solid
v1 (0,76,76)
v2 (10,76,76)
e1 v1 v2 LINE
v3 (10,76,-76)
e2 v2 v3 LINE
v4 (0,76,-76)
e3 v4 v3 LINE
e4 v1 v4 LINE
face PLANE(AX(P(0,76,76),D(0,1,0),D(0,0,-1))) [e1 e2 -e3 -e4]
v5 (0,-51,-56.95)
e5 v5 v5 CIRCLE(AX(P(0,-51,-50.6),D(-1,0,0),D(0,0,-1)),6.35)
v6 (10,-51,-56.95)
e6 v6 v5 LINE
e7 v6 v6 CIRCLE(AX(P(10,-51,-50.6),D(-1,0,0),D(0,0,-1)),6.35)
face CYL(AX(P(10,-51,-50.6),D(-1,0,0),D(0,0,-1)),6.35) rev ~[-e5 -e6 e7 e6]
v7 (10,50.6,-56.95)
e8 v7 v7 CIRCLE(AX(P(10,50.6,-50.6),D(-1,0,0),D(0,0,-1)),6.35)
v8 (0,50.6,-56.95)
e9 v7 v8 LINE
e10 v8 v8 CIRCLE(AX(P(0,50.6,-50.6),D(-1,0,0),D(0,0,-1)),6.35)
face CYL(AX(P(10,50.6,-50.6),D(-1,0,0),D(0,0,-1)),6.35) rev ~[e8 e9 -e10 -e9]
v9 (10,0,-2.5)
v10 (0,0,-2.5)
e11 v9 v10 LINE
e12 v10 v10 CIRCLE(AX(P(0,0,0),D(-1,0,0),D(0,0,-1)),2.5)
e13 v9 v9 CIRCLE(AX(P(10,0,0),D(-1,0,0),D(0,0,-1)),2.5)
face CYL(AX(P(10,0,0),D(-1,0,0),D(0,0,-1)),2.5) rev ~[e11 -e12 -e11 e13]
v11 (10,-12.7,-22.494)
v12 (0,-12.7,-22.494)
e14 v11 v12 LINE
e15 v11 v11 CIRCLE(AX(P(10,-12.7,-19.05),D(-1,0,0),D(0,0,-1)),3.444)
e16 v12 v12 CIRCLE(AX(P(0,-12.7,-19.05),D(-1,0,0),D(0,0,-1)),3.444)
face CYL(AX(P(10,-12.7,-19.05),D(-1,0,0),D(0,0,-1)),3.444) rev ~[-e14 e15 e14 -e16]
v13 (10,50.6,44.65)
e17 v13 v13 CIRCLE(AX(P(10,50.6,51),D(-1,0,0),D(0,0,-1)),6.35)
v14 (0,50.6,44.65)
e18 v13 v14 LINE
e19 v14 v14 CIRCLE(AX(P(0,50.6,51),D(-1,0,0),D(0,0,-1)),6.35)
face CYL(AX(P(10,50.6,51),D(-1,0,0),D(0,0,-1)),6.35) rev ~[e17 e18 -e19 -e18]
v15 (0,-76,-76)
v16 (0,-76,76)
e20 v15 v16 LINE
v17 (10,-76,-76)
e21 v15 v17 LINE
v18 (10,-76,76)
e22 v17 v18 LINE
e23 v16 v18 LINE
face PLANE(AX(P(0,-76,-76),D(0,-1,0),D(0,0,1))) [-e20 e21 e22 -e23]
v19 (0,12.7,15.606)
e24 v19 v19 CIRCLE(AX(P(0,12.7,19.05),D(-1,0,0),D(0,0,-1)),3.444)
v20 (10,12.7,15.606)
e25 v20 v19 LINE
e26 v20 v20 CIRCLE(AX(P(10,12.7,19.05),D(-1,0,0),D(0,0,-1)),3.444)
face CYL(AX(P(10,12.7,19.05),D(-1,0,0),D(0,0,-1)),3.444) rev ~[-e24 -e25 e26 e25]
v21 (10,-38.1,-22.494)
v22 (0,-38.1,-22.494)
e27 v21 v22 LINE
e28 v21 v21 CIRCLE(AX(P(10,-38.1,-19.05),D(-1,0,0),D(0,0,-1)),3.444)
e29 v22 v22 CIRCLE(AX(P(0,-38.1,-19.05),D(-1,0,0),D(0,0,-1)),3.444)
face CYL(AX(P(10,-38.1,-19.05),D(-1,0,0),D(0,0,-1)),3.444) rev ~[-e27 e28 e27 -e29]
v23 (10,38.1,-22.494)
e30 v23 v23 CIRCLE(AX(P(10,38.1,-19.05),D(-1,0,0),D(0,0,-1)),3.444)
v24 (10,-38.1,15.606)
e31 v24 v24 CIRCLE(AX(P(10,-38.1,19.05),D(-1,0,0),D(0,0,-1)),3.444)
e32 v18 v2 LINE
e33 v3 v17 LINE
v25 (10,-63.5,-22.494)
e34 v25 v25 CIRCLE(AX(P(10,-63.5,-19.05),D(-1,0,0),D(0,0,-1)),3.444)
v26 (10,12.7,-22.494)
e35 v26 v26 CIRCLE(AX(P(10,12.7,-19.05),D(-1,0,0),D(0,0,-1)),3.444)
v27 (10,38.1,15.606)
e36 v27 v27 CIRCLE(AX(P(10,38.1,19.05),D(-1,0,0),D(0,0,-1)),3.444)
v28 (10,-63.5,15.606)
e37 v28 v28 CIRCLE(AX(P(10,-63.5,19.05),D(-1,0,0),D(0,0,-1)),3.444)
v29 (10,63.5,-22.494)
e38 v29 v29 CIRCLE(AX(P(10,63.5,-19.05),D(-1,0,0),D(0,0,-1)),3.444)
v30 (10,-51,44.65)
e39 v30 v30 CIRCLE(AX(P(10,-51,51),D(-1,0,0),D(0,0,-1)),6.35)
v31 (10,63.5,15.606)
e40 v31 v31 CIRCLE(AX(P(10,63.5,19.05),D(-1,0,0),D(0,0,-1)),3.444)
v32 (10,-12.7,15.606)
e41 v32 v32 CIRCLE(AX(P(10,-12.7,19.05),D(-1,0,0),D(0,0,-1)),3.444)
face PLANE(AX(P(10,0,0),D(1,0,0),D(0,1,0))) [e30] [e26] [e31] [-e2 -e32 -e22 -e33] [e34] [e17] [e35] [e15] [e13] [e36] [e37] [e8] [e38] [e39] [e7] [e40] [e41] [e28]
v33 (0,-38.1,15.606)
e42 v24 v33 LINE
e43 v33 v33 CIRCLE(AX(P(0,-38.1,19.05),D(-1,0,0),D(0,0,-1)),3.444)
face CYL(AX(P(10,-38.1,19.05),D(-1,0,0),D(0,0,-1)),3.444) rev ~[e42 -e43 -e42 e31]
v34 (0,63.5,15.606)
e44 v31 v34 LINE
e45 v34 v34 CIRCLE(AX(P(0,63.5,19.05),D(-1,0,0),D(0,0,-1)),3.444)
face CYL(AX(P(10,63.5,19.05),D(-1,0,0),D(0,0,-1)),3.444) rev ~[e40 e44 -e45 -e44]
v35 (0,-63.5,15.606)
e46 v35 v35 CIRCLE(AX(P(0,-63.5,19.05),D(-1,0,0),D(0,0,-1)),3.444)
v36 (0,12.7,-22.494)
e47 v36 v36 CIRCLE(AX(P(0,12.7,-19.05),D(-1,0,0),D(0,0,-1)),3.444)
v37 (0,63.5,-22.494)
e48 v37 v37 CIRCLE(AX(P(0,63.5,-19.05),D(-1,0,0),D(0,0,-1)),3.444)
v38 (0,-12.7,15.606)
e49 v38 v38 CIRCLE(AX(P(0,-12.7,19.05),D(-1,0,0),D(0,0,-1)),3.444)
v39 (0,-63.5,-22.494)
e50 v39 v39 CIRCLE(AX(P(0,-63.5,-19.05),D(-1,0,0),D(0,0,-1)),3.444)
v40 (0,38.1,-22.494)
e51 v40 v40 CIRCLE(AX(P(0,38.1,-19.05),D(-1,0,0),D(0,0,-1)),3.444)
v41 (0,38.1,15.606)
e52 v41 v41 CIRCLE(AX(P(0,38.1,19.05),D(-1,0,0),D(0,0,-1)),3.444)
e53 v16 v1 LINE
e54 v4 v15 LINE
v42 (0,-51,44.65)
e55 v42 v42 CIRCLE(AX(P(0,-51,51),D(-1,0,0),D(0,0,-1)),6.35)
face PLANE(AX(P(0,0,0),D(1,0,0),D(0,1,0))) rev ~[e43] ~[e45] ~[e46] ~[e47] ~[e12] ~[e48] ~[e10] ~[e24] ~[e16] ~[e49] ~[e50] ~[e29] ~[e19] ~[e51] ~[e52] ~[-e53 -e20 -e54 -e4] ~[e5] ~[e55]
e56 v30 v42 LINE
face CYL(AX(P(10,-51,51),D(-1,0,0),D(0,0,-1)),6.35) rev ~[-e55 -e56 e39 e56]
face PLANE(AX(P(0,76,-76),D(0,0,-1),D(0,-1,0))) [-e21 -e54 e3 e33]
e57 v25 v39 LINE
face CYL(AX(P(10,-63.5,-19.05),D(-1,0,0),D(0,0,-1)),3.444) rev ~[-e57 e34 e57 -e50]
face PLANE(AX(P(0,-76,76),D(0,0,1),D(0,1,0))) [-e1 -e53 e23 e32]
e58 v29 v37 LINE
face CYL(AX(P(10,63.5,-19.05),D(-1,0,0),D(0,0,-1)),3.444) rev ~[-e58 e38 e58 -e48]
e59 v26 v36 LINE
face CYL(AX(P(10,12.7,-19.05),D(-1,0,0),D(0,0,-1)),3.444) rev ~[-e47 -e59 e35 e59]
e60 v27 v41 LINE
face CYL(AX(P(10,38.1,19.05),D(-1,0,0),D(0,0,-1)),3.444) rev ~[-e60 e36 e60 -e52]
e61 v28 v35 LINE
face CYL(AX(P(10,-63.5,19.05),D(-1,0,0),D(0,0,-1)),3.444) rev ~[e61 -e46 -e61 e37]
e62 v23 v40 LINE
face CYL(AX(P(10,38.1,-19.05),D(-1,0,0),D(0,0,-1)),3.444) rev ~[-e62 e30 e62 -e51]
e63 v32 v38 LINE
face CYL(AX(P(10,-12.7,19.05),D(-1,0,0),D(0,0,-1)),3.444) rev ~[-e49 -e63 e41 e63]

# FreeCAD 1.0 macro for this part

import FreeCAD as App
import Part
import Sketcher
from FreeCAD import Vector


def add_polygon(sketch, points):
    """Adds a closed chain of lines whose ends are joined by coincident constraints."""
    first, n = sketch.GeometryCount, len(points)
    for a, b in zip(points, points[1:] + points[:1]):
        sketch.addGeometry(Part.LineSegment(App.Vector(*a, 0), App.Vector(*b, 0)), False)
    for i in range(n):
        sketch.addConstraint(Sketcher.Constraint("Coincident", first + i, 2, first + (i + 1) % n, 1))

doc = App.newDocument("Part")
body = doc.addObject("PartDesign::Body", "Body")

# Sketch on YZ plane
sketch1 = body.newObject("Sketcher::SketchObject", "Sketch")
sketch1.AttachmentSupport = (doc.getObject("YZ_Plane"), [""])
sketch1.MapMode = "FlatFace"
add_polygon(sketch1, [(-76, -76), (76, -76), (76, 76), (-76, 76)])  # lines 0-3
sketch1.addConstraint([
    Sketcher.Constraint("Horizontal", 0),
    Sketcher.Constraint("Vertical", 1),
    Sketcher.Constraint("Horizontal", 2),
    Sketcher.Constraint("Vertical", 3),
    Sketcher.Constraint("Symmetric", 0, 2, 2, 2, -1, 1),
    Sketcher.Constraint("Equal", 2, 1),
    Sketcher.Constraint("DistanceX", 0, 1, 0, 2, 152.0),
])
pad1 = body.newObject("PartDesign::Pad", "Pad")
pad1.Profile = sketch1
pad1.Length = 10

# Sketch on YZ plane
sketch2 = body.newObject("Sketcher::SketchObject", "Sketch001")
sketch2.AttachmentSupport = (doc.getObject("YZ_Plane"), [""])
sketch2.MapMode = "FlatFace"
sketch2.AttachmentOffset = App.Placement(Vector(0, 0, 10), App.Rotation())
sketch2.addGeometry(Part.Circle(Vector(50.6, -50.6, 0), Vector(0, 0, 1), 6.35), False)
sketch2.addConstraint([
    Sketcher.Constraint("Diameter", 0, 12.7),
    Sketcher.Constraint("DistanceX", -1, 1, 0, 3, 50.6),
    Sketcher.Constraint("DistanceY", 0, 3, -1, 1, 50.6),
])
doc.recompute()
hole = body.newObject("PartDesign::Hole", "Hole")
hole.Profile = sketch2
hole.ThreadType = "None"
hole.Diameter = 12.7
hole.DepthType = "ThroughAll"

# Sketch on YZ plane
sketch3 = body.newObject("Sketcher::SketchObject", "Sketch002")
sketch3.AttachmentSupport = (doc.getObject("YZ_Plane"), [""])
sketch3.MapMode = "FlatFace"
sketch3.AttachmentOffset = App.Placement(Vector(0, 0, 10), App.Rotation())
sketch3.addGeometry(Part.Circle(Vector(50.6, 51, 0), Vector(0, 0, 1), 6.35), False)
sketch3.addConstraint([
    Sketcher.Constraint("Diameter", 0, 12.7),
    Sketcher.Constraint("DistanceY", -1, 1, 0, 3, 51.0),
    Sketcher.Constraint("DistanceX", -1, 1, 0, 3, 50.6),
])
doc.recompute()
hole2 = body.newObject("PartDesign::Hole", "Hole001")
hole2.Profile = sketch3
hole2.ThreadType = "None"
hole2.Diameter = 12.7
hole2.DepthType = "ThroughAll"

# Sketch on YZ plane
sketch4 = body.newObject("Sketcher::SketchObject", "Sketch003")
sketch4.AttachmentSupport = (doc.getObject("YZ_Plane"), [""])
sketch4.MapMode = "FlatFace"
sketch4.AttachmentOffset = App.Placement(Vector(0, 0, 10), App.Rotation())
sketch4.addGeometry(Part.Circle(Vector(-51, -50.6, 0), Vector(0, 0, 1), 6.35), False)
sketch4.addConstraint([
    Sketcher.Constraint("Diameter", 0, 12.7),
    Sketcher.Constraint("DistanceX", 0, 3, -1, 1, 51.0),
    Sketcher.Constraint("DistanceY", 0, 3, -1, 1, 50.6),
])
doc.recompute()
hole3 = body.newObject("PartDesign::Hole", "Hole002")
hole3.Profile = sketch4
hole3.ThreadType = "None"
hole3.Diameter = 12.7
hole3.DepthType = "ThroughAll"

# Sketch on YZ plane
sketch5 = body.newObject("Sketcher::SketchObject", "Sketch004")
sketch5.AttachmentSupport = (doc.getObject("YZ_Plane"), [""])
sketch5.MapMode = "FlatFace"
sketch5.AttachmentOffset = App.Placement(Vector(0, 0, 10), App.Rotation())
sketch5.addGeometry(Part.Circle(Vector(-51, 51, 0), Vector(0, 0, 1), 6.35), False)
sketch5.addConstraint([
    Sketcher.Constraint("Diameter", 0, 12.7),
    Sketcher.Constraint("DistanceX", 0, 3, -1, 1, 51.0),
    Sketcher.Constraint("DistanceY", -1, 1, 0, 3, 51.0),
])
doc.recompute()
hole4 = body.newObject("PartDesign::Hole", "Hole003")
hole4.Profile = sketch5
hole4.ThreadType = "None"
hole4.Diameter = 12.7
hole4.DepthType = "ThroughAll"

# Sketch on YZ plane
sketch6 = body.newObject("Sketcher::SketchObject", "Sketch005")
sketch6.AttachmentSupport = (doc.getObject("YZ_Plane"), [""])
sketch6.MapMode = "FlatFace"
sketch6.AttachmentOffset = App.Placement(Vector(0, 0, 10), App.Rotation())
sketch6.addGeometry(Part.Circle(Vector(63.5, -19.05, 0), Vector(0, 0, 1), 3.444), False)
sketch6.addConstraint([
    Sketcher.Constraint("Diameter", 0, 6.888),
    Sketcher.Constraint("DistanceX", -1, 1, 0, 3, 63.5),
    Sketcher.Constraint("DistanceY", 0, 3, -1, 1, 19.05),
])
doc.recompute()
hole5 = body.newObject("PartDesign::Hole", "Hole004")
hole5.Profile = sketch6
hole5.ThreadType = "None"
hole5.Diameter = 6.888
hole5.DepthType = "ThroughAll"

# Sketch on YZ plane
sketch7 = body.newObject("Sketcher::SketchObject", "Sketch006")
sketch7.AttachmentSupport = (doc.getObject("YZ_Plane"), [""])
sketch7.MapMode = "FlatFace"
sketch7.AttachmentOffset = App.Placement(Vector(0, 0, 10), App.Rotation())
sketch7.addGeometry(Part.Circle(Vector(63.5, 19.05, 0), Vector(0, 0, 1), 3.444), False)
sketch7.addConstraint([
    Sketcher.Constraint("Diameter", 0, 6.888),
    Sketcher.Constraint("DistanceX", -1, 1, 0, 3, 63.5),
    Sketcher.Constraint("DistanceY", -1, 1, 0, 3, 19.05),
])
doc.recompute()
hole6 = body.newObject("PartDesign::Hole", "Hole005")
hole6.Profile = sketch7
hole6.ThreadType = "None"
hole6.Diameter = 6.888
hole6.DepthType = "ThroughAll"
doc.recompute()

linearpattern = body.newObject("PartDesign::LinearPattern", "LinearPattern")
linearpattern.Originals = [hole5]
linearpattern.Direction = (doc.getObject("Y_Axis"), [""])
linearpattern.Mode = "offset"
linearpattern.Offset = 25.4
linearpattern.Occurrences = 6
linearpattern.Reversed = True
body.Tip = linearpattern
doc.recompute()

linearpattern2 = body.newObject("PartDesign::LinearPattern", "LinearPattern001")
linearpattern2.Originals = [hole6]
linearpattern2.Direction = (doc.getObject("Y_Axis"), [""])
linearpattern2.Mode = "offset"
linearpattern2.Offset = 25.4
linearpattern2.Occurrences = 6
linearpattern2.Reversed = True
body.Tip = linearpattern2

# Sketch on YZ plane
sketch8 = body.newObject("Sketcher::SketchObject", "Sketch007")
sketch8.AttachmentSupport = (doc.getObject("YZ_Plane"), [""])
sketch8.MapMode = "FlatFace"
sketch8.AttachmentOffset = App.Placement(Vector(0, 0, 10), App.Rotation())
sketch8.addGeometry(Part.Circle(Vector(0, 0, 0), Vector(0, 0, 1), 2.5), False)
sketch8.addConstraint([
    Sketcher.Constraint("Coincident", 0, 3, -1, 1),
    Sketcher.Constraint("Diameter", 0, 5.0),
])
doc.recompute()
hole7 = body.newObject("PartDesign::Hole", "Hole006")
hole7.Profile = sketch8
hole7.ThreadType = "None"
hole7.Diameter = 5
hole7.DepthType = "ThroughAll"

doc.recompute()
